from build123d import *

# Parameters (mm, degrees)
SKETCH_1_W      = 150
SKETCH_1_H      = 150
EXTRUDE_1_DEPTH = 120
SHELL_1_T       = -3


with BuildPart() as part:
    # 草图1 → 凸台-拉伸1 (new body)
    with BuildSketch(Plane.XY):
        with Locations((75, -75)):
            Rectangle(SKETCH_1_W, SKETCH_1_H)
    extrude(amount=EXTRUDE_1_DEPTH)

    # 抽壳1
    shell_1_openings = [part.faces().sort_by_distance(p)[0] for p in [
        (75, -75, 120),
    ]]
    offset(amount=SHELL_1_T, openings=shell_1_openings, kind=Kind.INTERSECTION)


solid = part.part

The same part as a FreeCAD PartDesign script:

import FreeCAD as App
import Part
import Sketcher
from FreeCAD import Vector
Q = App.Units.Quantity


def faces_at(feature, points):
    """Names of the faces that lie closest to the given points."""
    faces = feature.Shape.Faces
    near = lambda p: min(range(len(faces)), key=lambda i: faces[i].distToShape(Part.Vertex(*p))[0])
    return sorted({f"Face{near(p) + 1}" for p in points})


def add_polygon(sketch, points):
    """Adds a closed chain of lines whose ends are joined by coincident constraints."""
    first, n = sketch.GeometryCount, len(points)
    for a, b in zip(points, points[1:] + points[:1]):
        sketch.addGeometry(Part.LineSegment(App.Vector(*a, 0), App.Vector(*b, 0)), False)
    for i in range(n):
        sketch.addConstraint(Sketcher.Constraint("Coincident", first + i, 2, first + (i + 1) % n, 1))

doc = App.newDocument("Part")
body = doc.addObject("PartDesign::Body", "Body")

# Sketch on XY plane
sketch1 = doc.addObject("Sketcher::SketchObject", "Sketch")
body.addObject(sketch1)
sketch1.AttachmentSupport = (doc.XY_Plane, [""])
sketch1.MapMode = "FlatFace"
add_polygon(sketch1, [(0, 0), (0, -150), (150, -150), (150, 0)])  # lines 0-3
sketch1.addConstraint([
    Sketcher.Constraint("Vertical", 0),
    Sketcher.Constraint("Horizontal", 1),
    Sketcher.Constraint("Vertical", 2),
    Sketcher.Constraint("Horizontal", 3),
    Sketcher.Constraint("Coincident", 3, 2, -1, 1),
    Sketcher.Constraint("Equal", 3, 0),
    Sketcher.Constraint("DistanceX", 1, 1, 1, 2, Q("150 mm")),
])
pad1 = doc.addObject("PartDesign::Pad", "Pad")
body.addObject(pad1)
pad1.Profile = sketch1
pad1.Length = 120
doc.recompute()

thickness = doc.addObject("PartDesign::Thickness", "Thickness")
body.addObject(thickness)
thickness.Base = (pad1, faces_at(pad1, [(75, -75, 120)]))
thickness.Value = 3
thickness.Reversed = True
thickness.Join = "Intersection"

doc.recompute()
